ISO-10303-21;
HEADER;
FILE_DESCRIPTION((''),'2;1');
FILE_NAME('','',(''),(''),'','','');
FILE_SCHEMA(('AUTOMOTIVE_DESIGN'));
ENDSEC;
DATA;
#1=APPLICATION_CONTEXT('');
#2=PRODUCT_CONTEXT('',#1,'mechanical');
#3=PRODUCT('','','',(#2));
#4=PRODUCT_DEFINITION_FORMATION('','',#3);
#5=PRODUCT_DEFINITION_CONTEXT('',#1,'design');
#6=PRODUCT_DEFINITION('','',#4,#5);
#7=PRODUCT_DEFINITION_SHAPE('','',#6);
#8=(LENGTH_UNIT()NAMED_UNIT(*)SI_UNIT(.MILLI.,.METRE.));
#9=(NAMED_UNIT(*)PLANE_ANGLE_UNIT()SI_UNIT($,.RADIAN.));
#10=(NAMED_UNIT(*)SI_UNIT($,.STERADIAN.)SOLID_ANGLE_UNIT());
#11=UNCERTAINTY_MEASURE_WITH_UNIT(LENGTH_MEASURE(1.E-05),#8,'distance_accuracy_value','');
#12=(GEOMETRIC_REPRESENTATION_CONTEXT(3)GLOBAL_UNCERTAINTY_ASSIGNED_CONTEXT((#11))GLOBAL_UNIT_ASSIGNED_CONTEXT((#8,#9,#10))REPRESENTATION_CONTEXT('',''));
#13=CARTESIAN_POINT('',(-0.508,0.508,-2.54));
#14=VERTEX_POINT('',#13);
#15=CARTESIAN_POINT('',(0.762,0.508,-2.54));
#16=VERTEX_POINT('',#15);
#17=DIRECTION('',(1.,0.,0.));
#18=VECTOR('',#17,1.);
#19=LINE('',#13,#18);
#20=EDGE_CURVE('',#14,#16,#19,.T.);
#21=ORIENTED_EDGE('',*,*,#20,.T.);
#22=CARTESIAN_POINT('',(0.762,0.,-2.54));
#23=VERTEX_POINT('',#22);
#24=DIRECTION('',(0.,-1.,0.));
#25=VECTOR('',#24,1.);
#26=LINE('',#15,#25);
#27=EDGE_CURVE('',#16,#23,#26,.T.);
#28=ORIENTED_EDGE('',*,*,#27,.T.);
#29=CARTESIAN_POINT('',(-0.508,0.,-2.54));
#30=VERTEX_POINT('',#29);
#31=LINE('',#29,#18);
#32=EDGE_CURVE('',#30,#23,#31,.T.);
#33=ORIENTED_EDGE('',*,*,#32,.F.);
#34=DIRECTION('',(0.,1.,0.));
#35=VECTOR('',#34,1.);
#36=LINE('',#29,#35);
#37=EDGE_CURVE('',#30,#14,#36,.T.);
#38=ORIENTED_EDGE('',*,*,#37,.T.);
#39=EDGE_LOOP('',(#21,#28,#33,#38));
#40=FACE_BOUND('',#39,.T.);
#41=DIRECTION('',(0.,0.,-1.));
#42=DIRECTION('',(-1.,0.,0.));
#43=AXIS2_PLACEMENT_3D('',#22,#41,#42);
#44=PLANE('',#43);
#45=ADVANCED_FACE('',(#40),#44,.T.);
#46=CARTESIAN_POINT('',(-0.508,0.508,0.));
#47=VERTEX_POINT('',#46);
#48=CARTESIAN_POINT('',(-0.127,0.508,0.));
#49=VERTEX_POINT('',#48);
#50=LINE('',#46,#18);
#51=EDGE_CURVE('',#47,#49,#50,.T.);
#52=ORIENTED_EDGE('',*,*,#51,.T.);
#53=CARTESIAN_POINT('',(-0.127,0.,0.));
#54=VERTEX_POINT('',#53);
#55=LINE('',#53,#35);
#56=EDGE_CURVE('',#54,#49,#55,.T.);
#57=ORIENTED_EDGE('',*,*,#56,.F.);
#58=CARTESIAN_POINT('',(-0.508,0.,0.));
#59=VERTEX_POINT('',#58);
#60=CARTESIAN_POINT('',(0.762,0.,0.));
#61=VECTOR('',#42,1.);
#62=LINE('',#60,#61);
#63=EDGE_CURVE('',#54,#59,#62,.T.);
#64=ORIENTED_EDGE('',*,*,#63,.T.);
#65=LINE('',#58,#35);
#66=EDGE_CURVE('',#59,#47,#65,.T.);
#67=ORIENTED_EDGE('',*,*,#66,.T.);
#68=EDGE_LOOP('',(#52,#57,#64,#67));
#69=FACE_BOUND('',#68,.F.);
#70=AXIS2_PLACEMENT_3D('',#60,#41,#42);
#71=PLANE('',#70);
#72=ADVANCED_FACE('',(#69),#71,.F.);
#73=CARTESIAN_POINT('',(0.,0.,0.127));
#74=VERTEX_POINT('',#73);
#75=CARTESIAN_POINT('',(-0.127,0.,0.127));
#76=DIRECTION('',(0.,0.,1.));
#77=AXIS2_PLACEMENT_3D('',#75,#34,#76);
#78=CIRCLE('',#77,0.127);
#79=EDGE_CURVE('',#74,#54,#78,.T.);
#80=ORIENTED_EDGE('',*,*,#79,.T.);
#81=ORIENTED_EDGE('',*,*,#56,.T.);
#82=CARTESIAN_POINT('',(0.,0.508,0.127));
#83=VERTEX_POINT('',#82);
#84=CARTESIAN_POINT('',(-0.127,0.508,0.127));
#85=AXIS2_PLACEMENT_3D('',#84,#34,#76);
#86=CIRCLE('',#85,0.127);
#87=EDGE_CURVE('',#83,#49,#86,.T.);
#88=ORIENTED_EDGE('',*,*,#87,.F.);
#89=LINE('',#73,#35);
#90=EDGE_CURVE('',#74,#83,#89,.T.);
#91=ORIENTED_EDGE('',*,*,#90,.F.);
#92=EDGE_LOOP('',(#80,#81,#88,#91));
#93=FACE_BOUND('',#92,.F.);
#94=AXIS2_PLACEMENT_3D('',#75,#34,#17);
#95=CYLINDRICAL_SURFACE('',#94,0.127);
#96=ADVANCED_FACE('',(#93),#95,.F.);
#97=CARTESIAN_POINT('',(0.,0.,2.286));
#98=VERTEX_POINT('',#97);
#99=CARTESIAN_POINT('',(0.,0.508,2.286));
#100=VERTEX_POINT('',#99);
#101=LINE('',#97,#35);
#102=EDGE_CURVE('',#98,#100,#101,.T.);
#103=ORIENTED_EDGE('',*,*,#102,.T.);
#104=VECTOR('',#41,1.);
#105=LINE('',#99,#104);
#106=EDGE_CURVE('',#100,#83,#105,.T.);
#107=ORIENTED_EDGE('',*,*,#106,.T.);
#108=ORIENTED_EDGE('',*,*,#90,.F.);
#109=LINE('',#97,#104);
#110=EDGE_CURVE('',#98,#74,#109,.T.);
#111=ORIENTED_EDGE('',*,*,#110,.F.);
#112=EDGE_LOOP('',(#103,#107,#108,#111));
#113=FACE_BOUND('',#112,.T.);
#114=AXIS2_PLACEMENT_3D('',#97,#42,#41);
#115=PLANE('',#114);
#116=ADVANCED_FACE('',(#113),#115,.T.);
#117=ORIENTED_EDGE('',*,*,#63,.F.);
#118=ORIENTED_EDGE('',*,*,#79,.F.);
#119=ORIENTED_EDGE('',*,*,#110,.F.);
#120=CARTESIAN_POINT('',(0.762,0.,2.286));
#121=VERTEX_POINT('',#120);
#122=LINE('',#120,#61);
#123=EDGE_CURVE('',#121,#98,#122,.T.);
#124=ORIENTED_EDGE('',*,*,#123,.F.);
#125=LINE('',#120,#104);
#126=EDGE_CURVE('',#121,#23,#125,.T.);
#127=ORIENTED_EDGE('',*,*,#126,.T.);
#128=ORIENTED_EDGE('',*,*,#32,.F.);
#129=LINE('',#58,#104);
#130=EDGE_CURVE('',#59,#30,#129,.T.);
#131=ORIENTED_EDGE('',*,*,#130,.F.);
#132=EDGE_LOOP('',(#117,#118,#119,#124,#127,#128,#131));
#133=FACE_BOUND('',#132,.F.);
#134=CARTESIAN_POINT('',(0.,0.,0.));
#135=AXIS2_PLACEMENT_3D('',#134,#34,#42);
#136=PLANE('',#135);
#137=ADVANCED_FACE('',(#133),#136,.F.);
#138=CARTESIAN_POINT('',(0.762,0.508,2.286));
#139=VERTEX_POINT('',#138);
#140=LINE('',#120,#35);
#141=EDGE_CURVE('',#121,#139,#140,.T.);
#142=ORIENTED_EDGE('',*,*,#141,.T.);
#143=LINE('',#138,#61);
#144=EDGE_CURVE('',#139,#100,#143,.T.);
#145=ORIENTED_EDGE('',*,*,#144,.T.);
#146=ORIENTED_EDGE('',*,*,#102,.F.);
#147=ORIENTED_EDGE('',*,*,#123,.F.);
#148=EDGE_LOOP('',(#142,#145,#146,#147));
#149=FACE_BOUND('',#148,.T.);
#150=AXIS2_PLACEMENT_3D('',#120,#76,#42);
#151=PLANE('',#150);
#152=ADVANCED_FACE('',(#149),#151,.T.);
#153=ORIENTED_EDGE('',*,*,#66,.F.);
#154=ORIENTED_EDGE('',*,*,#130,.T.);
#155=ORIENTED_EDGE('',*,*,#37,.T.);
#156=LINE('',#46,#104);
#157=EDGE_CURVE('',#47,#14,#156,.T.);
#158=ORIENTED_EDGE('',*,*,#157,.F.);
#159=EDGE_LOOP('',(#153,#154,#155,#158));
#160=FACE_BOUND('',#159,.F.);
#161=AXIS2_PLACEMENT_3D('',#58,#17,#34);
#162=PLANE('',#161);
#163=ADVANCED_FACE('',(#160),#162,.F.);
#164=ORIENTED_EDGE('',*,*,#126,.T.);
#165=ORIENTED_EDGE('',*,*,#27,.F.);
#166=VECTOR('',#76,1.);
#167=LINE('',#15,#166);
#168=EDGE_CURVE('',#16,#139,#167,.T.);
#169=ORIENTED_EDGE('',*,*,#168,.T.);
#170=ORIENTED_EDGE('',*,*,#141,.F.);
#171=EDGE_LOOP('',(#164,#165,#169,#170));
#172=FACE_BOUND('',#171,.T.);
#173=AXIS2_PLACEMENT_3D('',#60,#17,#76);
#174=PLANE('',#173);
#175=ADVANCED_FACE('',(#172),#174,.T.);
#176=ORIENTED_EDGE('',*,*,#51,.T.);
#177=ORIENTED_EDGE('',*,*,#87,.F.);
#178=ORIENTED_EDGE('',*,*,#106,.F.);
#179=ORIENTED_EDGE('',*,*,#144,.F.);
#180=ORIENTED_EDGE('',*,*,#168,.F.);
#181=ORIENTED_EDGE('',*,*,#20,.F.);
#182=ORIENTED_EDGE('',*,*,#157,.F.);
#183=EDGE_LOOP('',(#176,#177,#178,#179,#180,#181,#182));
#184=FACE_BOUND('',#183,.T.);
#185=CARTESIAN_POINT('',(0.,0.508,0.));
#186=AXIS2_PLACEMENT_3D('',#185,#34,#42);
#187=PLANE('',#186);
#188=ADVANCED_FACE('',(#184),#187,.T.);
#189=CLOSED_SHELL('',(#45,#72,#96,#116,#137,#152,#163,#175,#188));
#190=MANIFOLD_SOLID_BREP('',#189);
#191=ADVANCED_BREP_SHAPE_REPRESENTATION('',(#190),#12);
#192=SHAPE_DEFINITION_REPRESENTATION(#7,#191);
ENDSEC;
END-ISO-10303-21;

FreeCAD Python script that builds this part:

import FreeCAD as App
import Part
import Sketcher
from FreeCAD import Vector
Q = App.Units.Quantity


def edges_at(feature, points):
    """Names of the edges that pass closest to the given points."""
    edges = feature.Shape.Edges
    near = lambda p: min(range(len(edges)), key=lambda i: edges[i].distToShape(Part.Vertex(*p))[0])
    return sorted({f"Edge{near(p) + 1}" for p in points})

doc = App.newDocument("Part")
body = doc.addObject("PartDesign::Body", "Body")

# Sketch on XZ plane
sketch1 = body.newObject("Sketcher::SketchObject", "Sketch")
sketch1.AttachmentSupport = (doc.getObject("XZ_Plane"), [""])
sketch1.MapMode = "FlatFace"
sketch1.addGeometry([
    Part.LineSegment(Vector(0.762, 0, 0), Vector(0, 0, 0)),
    Part.LineSegment(Vector(0, 0, 0), Vector(0, 2.286, 0)),
    Part.LineSegment(Vector(0, 2.286, 0), Vector(0.762, 2.286, 0)),
    Part.LineSegment(Vector(0.762, 2.286, 0), Vector(0.762, 0, 0)),
], False)
sketch1.addConstraint([
    Sketcher.Constraint("Coincident", 0, 2, 1, 1),
    Sketcher.Constraint("Coincident", 1, 2, 2, 1),
    Sketcher.Constraint("Coincident", 2, 2, 3, 1),
    Sketcher.Constraint("Coincident", 3, 2, 0, 1),
    Sketcher.Constraint("Horizontal", 0),
    Sketcher.Constraint("Vertical", 1),
    Sketcher.Constraint("Horizontal", 2),
    Sketcher.Constraint("Vertical", 3),
    Sketcher.Constraint("Coincident", 0, 2, -1, 1),
    Sketcher.Constraint("DistanceX", 0, 2, 0, 1, Q("0.03 in")),
    Sketcher.Constraint("DistanceY", 1, 1, 1, 2, Q("0.09 in")),
])
pad1 = body.newObject("PartDesign::Pad", "Pad")
pad1.Profile = sketch1
pad1.Length = Q("0.02 in")
pad1.Reversed = True

# Sketch on XY plane
sketch2 = body.newObject("Sketcher::SketchObject", "Sketch001")
sketch2.AttachmentSupport = (doc.getObject("XY_Plane"), [""])
sketch2.MapMode = "FlatFace"
sketch2.addGeometry([
    Part.LineSegment(Vector(0.762, 0, 0), Vector(-0.508, 0, 0)),
    Part.LineSegment(Vector(-0.508, 0, 0), Vector(-0.508, 0.508, 0)),
    Part.LineSegment(Vector(-0.508, 0.508, 0), Vector(0.762, 0.508, 0)),
    Part.LineSegment(Vector(0.762, 0.508, 0), Vector(0.762, 0, 0)),
], False)
sketch2.addConstraint([
    Sketcher.Constraint("Coincident", 0, 2, 1, 1),
    Sketcher.Constraint("Coincident", 1, 2, 2, 1),
    Sketcher.Constraint("Coincident", 2, 2, 3, 1),
    Sketcher.Constraint("Coincident", 3, 2, 0, 1),
    Sketcher.Constraint("Horizontal", 0),
    Sketcher.Constraint("Vertical", 1),
    Sketcher.Constraint("Horizontal", 2),
    Sketcher.Constraint("Vertical", 3),
    Sketcher.Constraint("PointOnObject", 0, 2, -1),
    Sketcher.Constraint("DistanceX", 0, 2, 0, 1, Q("0.05 in")),
    Sketcher.Constraint("DistanceY", 1, 1, 1, 2, Q("0.02 in")),
    Sketcher.Constraint("DistanceX", 0, 2, -1, 1, Q("0.02 in")),
])
pad2 = body.newObject("PartDesign::Pad", "Pad001")
pad2.Profile = sketch2
pad2.Length = Q("0.1 in")
pad2.Reversed = True
doc.recompute()

fillet = body.newObject("PartDesign::Fillet", "Fillet")
fillet.Base = (pad2, edges_at(pad2, [(0, 0.254, 0)]))
fillet.Radius = Q("0.005 in")

doc.recompute()
